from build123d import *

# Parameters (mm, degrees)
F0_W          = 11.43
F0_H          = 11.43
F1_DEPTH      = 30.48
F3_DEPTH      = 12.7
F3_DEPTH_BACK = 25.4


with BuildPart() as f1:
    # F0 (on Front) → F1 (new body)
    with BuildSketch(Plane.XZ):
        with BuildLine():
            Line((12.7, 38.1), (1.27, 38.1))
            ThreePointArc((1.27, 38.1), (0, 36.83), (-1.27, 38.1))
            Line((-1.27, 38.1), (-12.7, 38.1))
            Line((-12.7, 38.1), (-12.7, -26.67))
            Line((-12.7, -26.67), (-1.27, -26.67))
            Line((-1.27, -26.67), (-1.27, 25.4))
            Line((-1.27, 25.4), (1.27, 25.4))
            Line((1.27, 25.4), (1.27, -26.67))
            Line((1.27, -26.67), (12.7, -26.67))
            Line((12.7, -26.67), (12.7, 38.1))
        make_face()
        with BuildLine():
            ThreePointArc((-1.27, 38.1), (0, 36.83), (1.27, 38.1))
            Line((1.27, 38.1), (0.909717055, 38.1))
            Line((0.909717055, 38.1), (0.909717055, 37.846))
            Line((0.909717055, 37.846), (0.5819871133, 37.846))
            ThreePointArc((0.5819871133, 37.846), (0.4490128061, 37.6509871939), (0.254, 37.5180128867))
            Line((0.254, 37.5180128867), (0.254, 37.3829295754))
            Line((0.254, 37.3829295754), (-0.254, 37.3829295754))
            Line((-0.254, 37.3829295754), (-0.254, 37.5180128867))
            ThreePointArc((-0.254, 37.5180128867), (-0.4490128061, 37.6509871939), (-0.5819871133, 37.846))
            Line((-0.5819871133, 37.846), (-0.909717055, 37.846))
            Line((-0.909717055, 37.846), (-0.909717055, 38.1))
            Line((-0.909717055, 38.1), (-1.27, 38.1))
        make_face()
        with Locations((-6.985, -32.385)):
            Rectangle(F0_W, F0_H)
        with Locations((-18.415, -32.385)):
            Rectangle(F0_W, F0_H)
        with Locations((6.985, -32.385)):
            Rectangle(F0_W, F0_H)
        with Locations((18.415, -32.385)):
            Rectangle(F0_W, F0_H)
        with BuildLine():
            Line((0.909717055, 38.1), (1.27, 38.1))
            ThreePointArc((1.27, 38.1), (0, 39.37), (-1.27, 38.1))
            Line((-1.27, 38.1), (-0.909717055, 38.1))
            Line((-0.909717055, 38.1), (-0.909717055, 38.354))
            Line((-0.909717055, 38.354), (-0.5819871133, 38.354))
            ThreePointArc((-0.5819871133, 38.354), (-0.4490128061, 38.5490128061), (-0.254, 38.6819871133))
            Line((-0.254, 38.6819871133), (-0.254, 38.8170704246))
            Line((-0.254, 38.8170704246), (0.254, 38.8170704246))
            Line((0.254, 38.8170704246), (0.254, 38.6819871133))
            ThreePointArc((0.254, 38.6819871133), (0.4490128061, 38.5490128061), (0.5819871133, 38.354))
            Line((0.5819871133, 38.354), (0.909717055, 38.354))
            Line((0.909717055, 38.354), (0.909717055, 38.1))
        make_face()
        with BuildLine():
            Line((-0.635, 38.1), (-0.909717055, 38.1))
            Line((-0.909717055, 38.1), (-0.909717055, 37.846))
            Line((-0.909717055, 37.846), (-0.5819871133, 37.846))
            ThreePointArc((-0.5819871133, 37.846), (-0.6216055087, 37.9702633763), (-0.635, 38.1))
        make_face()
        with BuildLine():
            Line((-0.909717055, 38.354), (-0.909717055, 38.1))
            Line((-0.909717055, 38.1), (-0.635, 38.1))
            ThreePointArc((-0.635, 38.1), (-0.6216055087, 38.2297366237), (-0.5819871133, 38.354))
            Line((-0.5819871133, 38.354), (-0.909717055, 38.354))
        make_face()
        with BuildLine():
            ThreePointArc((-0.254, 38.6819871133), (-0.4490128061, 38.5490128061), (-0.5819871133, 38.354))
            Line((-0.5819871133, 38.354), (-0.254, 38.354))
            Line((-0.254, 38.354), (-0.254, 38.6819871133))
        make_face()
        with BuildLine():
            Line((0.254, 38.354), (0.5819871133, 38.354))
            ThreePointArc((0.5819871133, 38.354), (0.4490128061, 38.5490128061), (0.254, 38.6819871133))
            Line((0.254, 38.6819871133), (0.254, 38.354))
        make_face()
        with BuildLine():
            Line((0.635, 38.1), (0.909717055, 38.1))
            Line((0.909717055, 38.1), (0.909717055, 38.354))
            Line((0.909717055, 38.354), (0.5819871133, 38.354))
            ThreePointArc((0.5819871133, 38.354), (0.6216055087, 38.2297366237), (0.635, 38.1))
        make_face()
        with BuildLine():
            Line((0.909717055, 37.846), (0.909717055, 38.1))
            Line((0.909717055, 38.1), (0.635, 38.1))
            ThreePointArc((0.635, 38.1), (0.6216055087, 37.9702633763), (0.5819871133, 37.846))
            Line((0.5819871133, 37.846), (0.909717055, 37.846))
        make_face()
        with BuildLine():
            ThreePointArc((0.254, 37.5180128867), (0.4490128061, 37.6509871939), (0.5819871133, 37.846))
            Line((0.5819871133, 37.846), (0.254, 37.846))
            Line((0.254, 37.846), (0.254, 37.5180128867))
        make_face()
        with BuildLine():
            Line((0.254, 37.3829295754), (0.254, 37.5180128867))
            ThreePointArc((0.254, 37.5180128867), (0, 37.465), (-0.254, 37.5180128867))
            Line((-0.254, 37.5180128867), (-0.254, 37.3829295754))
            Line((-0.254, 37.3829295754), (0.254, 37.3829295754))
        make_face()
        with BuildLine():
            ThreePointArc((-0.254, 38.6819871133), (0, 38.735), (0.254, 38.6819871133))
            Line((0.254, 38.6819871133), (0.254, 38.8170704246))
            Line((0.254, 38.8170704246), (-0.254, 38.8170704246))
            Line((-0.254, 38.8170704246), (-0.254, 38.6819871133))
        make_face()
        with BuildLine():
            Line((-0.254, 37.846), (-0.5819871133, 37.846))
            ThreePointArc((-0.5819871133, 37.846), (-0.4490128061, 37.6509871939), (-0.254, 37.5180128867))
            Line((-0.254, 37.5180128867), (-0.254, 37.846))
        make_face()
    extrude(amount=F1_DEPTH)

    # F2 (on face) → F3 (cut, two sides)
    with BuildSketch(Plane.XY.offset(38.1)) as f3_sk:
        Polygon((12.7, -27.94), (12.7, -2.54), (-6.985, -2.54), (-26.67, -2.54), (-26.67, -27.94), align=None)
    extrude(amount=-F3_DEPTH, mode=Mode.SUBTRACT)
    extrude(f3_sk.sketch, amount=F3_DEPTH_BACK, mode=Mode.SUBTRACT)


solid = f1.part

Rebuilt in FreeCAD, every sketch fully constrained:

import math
import FreeCAD as App
import Part
import Sketcher
Q = App.Units.Quantity

doc = App.newDocument("Part")
body = doc.addObject("PartDesign::Body", "Body")

sketch1 = body.newObject("Sketcher::SketchObject", "Sketch")
sketch1.AttachmentSupport = (doc.getObject("XZ_Plane"), [""])
sketch1.MapMode = "FlatFace"
sketch1.addGeometry(Part.LineSegment(App.Vector(12.7, -26.67, 0), App.Vector(12.7, 38.1, 0)), False)
sketch1.addGeometry(Part.LineSegment(App.Vector(12.7, 38.1, 0), App.Vector(1.27, 38.1, 0)), False)
sketch1.addGeometry(Part.ArcOfCircle(Part.Circle(App.Vector(0, 38.1, 0), App.Vector(0, 0, 1), 1.27), math.radians(0), math.radians(180)), False)
sketch1.addGeometry(Part.LineSegment(App.Vector(-1.27, 38.1, 0), App.Vector(-12.7, 38.1, 0)), False)
sketch1.addGeometry(Part.LineSegment(App.Vector(-12.7, 38.1, 0), App.Vector(-12.7, -26.67, 0)), False)
sketch1.addGeometry(Part.LineSegment(App.Vector(-12.7, -26.67, 0), App.Vector(-24.13, -26.67, 0)), False)
sketch1.addGeometry(Part.LineSegment(App.Vector(-24.13, -26.67, 0), App.Vector(-24.13, -38.1, 0)), False)
sketch1.addGeometry(Part.LineSegment(App.Vector(-24.13, -38.1, 0), App.Vector(-1.27, -38.1, 0)), False)
sketch1.addGeometry(Part.LineSegment(App.Vector(-1.27, -38.1, 0), App.Vector(-1.27, 25.4, 0)), False)
sketch1.addGeometry(Part.LineSegment(App.Vector(-1.27, 25.4, 0), App.Vector(1.27, 25.4, 0)), False)
sketch1.addGeometry(Part.LineSegment(App.Vector(1.27, 25.4, 0), App.Vector(1.27, -38.1, 0)), False)
sketch1.addGeometry(Part.LineSegment(App.Vector(1.27, -38.1, 0), App.Vector(24.13, -38.1, 0)), False)
sketch1.addGeometry(Part.LineSegment(App.Vector(24.13, -38.1, 0), App.Vector(24.13, -26.67, 0)), False)
sketch1.addGeometry(Part.LineSegment(App.Vector(24.13, -26.67, 0), App.Vector(12.7, -26.67, 0)), False)
sketch1.addGeometry(Part.ArcOfCircle(Part.Circle(App.Vector(0, 38.1, 0), App.Vector(0, 0, 1), 0.64), math.radians(180), math.radians(204)), False)
sketch1.addGeometry(Part.ArcOfCircle(Part.Circle(App.Vector(0, 38.1, 0), App.Vector(0, 0, 1), 0.64), math.radians(156), math.radians(180)), False)
sketch1.addGeometry(Part.LineSegment(App.Vector(-0.58, 38.35, 0), App.Vector(-0.25, 38.35, 0)), False)
sketch1.addGeometry(Part.LineSegment(App.Vector(-0.25, 38.35, 0), App.Vector(-0.25, 38.68, 0)), False)
sketch1.addGeometry(Part.ArcOfCircle(Part.Circle(App.Vector(0, 38.1, 0), App.Vector(0, 0, 1), 0.64), math.radians(66), math.radians(114)), False)
sketch1.addGeometry(Part.LineSegment(App.Vector(0.25, 38.68, 0), App.Vector(0.25, 38.35, 0)), False)
sketch1.addGeometry(Part.LineSegment(App.Vector(0.25, 38.35, 0), App.Vector(0.58, 38.35, 0)), False)
sketch1.addGeometry(Part.ArcOfCircle(Part.Circle(App.Vector(0, 38.1, 0), App.Vector(0, 0, 1), 0.64), math.radians(0), math.radians(24)), False)
sketch1.addGeometry(Part.ArcOfCircle(Part.Circle(App.Vector(0, 38.1, 0), App.Vector(0, 0, 1), 0.64), math.radians(-24), math.radians(0)), False)
sketch1.addGeometry(Part.LineSegment(App.Vector(0.58, 37.85, 0), App.Vector(0.25, 37.85, 0)), False)
sketch1.addGeometry(Part.LineSegment(App.Vector(0.25, 37.85, 0), App.Vector(0.25, 37.52, 0)), False)
sketch1.addGeometry(Part.ArcOfCircle(Part.Circle(App.Vector(0, 38.1, 0), App.Vector(0, 0, 1), 0.64), math.radians(-114), math.radians(-66)), False)
sketch1.addGeometry(Part.LineSegment(App.Vector(-0.25, 37.52, 0), App.Vector(-0.25, 37.85, 0)), False)
sketch1.addGeometry(Part.LineSegment(App.Vector(-0.25, 37.85, 0), App.Vector(-0.58, 37.85, 0)), False)
sketch1.addConstraint(Sketcher.Constraint("Coincident", 0, 2, 1, 1))
sketch1.addConstraint(Sketcher.Constraint("Coincident", 1, 2, 2, 1))
sketch1.addConstraint(Sketcher.Constraint("Coincident", 2, 2, 3, 1))
sketch1.addConstraint(Sketcher.Constraint("Coincident", 3, 2, 4, 1))
sketch1.addConstraint(Sketcher.Constraint("Coincident", 4, 2, 5, 1))
sketch1.addConstraint(Sketcher.Constraint("Coincident", 5, 2, 6, 1))
sketch1.addConstraint(Sketcher.Constraint("Coincident", 6, 2, 7, 1))
sketch1.addConstraint(Sketcher.Constraint("Coincident", 7, 2, 8, 1))
sketch1.addConstraint(Sketcher.Constraint("Coincident", 8, 2, 9, 1))
sketch1.addConstraint(Sketcher.Constraint("Coincident", 9, 2, 10, 1))
sketch1.addConstraint(Sketcher.Constraint("Coincident", 10, 2, 11, 1))
sketch1.addConstraint(Sketcher.Constraint("Coincident", 11, 2, 12, 1))
sketch1.addConstraint(Sketcher.Constraint("Coincident", 12, 2, 13, 1))
sketch1.addConstraint(Sketcher.Constraint("Coincident", 13, 2, 0, 1))
sketch1.addConstraint(Sketcher.Constraint("Tangent", 14, 1, 15, 2))
sketch1.addConstraint(Sketcher.Constraint("Coincident", 15, 1, 16, 1))
sketch1.addConstraint(Sketcher.Constraint("Coincident", 16, 2, 17, 1))
sketch1.addConstraint(Sketcher.Constraint("Coincident", 17, 2, 18, 2))
sketch1.addConstraint(Sketcher.Constraint("Coincident", 18, 1, 19, 1))
sketch1.addConstraint(Sketcher.Constraint("Coincident", 19, 2, 20, 1))
sketch1.addConstraint(Sketcher.Constraint("Coincident", 20, 2, 21, 2))
sketch1.addConstraint(Sketcher.Constraint("Tangent", 21, 1, 22, 2))
sketch1.addConstraint(Sketcher.Constraint("Coincident", 22, 1, 23, 1))
sketch1.addConstraint(Sketcher.Constraint("Coincident", 23, 2, 24, 1))
sketch1.addConstraint(Sketcher.Constraint("Coincident", 24, 2, 25, 2))
sketch1.addConstraint(Sketcher.Constraint("Coincident", 25, 1, 26, 1))
sketch1.addConstraint(Sketcher.Constraint("Coincident", 26, 2, 27, 1))
sketch1.addConstraint(Sketcher.Constraint("Coincident", 27, 2, 14, 2))
sketch1.addConstraint(Sketcher.Constraint("Vertical", 0))
sketch1.addConstraint(Sketcher.Constraint("Horizontal", 1))
sketch1.addConstraint(Sketcher.Constraint("Horizontal", 3))
sketch1.addConstraint(Sketcher.Constraint("Vertical", 4))
sketch1.addConstraint(Sketcher.Constraint("Horizontal", 5))
sketch1.addConstraint(Sketcher.Constraint("Vertical", 6))
sketch1.addConstraint(Sketcher.Constraint("Horizontal", 7))
sketch1.addConstraint(Sketcher.Constraint("Vertical", 8))
sketch1.addConstraint(Sketcher.Constraint("Horizontal", 9))
sketch1.addConstraint(Sketcher.Constraint("Vertical", 10))
sketch1.addConstraint(Sketcher.Constraint("Horizontal", 11))
sketch1.addConstraint(Sketcher.Constraint("Vertical", 12))
sketch1.addConstraint(Sketcher.Constraint("Horizontal", 13))
sketch1.addConstraint(Sketcher.Constraint("Horizontal", 16))
sketch1.addConstraint(Sketcher.Constraint("Vertical", 17))
sketch1.addConstraint(Sketcher.Constraint("Vertical", 19))
sketch1.addConstraint(Sketcher.Constraint("Horizontal", 20))
sketch1.addConstraint(Sketcher.Constraint("Horizontal", 23))
sketch1.addConstraint(Sketcher.Constraint("Vertical", 24))
sketch1.addConstraint(Sketcher.Constraint("Vertical", 26))
sketch1.addConstraint(Sketcher.Constraint("Horizontal", 27))
sketch1.addConstraint(Sketcher.Constraint("Coincident", 14, 3, 2, 3))
sketch1.addConstraint(Sketcher.Constraint("Coincident", 18, 3, 2, 3))
sketch1.addConstraint(Sketcher.Constraint("Coincident", 21, 3, 2, 3))
sketch1.addConstraint(Sketcher.Constraint("Coincident", 25, 3, 2, 3))
sketch1.addConstraint(Sketcher.Constraint("Equal", 14, 15))
sketch1.addConstraint(Sketcher.Constraint("Equal", 15, 18))
sketch1.addConstraint(Sketcher.Constraint("Equal", 18, 21))
sketch1.addConstraint(Sketcher.Constraint("Equal", 21, 22))
sketch1.addConstraint(Sketcher.Constraint("Equal", 22, 25))
sketch1.addConstraint(Sketcher.Constraint("Symmetric", 1, 2, 7, 2, -1, 1))
sketch1.addConstraint(Sketcher.Constraint("Symmetric", 2, 2, 10, 2, -1, 1))
sketch1.addConstraint(Sketcher.Constraint("Symmetric", 1, 2, 2, 2, -2))
sketch1.addConstraint(Sketcher.Constraint("Symmetric", 5, 2, 12, 2, -2))
sketch1.addConstraint(Sketcher.Constraint("Symmetric", 16, 2, 19, 2, -2))
sketch1.addConstraint(Sketcher.Constraint("Symmetric", 23, 2, 26, 2, -2))
sketch1.addConstraint(Sketcher.Constraint("Horizontal", 25, 3, 0, 2))
sketch1.addConstraint(Sketcher.Constraint("Horizontal", 3, 2, 14, 1))
sketch1.addConstraint(Sketcher.Constraint("Horizontal", 14, 1, 21, 1))
sketch1.addConstraint(Sketcher.Constraint("Vertical", 20, 2, 22, 1))
sketch1.addConstraint(Sketcher.Constraint("Vertical", 19, 2, 23, 2))
sketch1.addConstraint(Sketcher.Constraint("Equal", 1, 3))
sketch1.addConstraint(Sketcher.Constraint("Equal", 3, 5))
sketch1.addConstraint(Sketcher.Constraint("Equal", 13, 6))
sketch1.addConstraint(Sketcher.Constraint("Equal", 27, 17))
sketch1.addConstraint(Sketcher.Constraint("Radius", 2, Q("0.05 in")))
sketch1.addConstraint(Sketcher.Constraint("DistanceX", 7, 1, 7, 2, Q("0.9 in")))
sketch1.addConstraint(Sketcher.Constraint("DistanceY", 8, 1, 8, 2, Q("2.5 in")))
sketch1.addConstraint(Sketcher.Constraint("DistanceY", -1, 1, 8, 2, Q("1 in")))
sketch1.addConstraint(Sketcher.Constraint("Radius", 14, Q("0.025 in")))
sketch1.addConstraint(Sketcher.Constraint("DistanceY", -1, 1, 15, 1, Q("1.51 in")))
pad1 = body.newObject("PartDesign::Pad", "Pad")
pad1.Profile = sketch1
pad1.Length = Q("1.2 in")

sketch2 = body.newObject("Sketcher::SketchObject", "Sketch001")
sketch2.AttachmentSupport = (doc.getObject("XY_Plane"), [""])
sketch2.MapMode = "FlatFace"
sketch2.AttachmentOffset = App.Placement(App.Vector(0, 0, 1.5 * 25.4), App.Rotation())
sketch2.addGeometry(Part.LineSegment(App.Vector(13, -28, 0), App.Vector(13, -3, 0)), False)
sketch2.addGeometry(Part.LineSegment(App.Vector(13, -3, 0), App.Vector(-27, -3, 0)), False)
sketch2.addGeometry(Part.LineSegment(App.Vector(-27, -3, 0), App.Vector(-27, -28, 0)), False)
sketch2.addGeometry(Part.LineSegment(App.Vector(-27, -28, 0), App.Vector(13, -28, 0)), False)
sketch2.addConstraint(Sketcher.Constraint("Coincident", 0, 2, 1, 1))
sketch2.addConstraint(Sketcher.Constraint("Coincident", 1, 2, 2, 1))
sketch2.addConstraint(Sketcher.Constraint("Coincident", 2, 2, 3, 1))
sketch2.addConstraint(Sketcher.Constraint("Coincident", 3, 2, 0, 1))
sketch2.addConstraint(Sketcher.Constraint("Vertical", 0))
sketch2.addConstraint(Sketcher.Constraint("Horizontal", 1))
sketch2.addConstraint(Sketcher.Constraint("Vertical", 2))
sketch2.addConstraint(Sketcher.Constraint("Horizontal", 3))
sketch2.addConstraint(Sketcher.Constraint("DistanceY", 0, 1, 0, 2, Q("1 in")))
sketch2.addConstraint(Sketcher.Constraint("DistanceX", 1, 2, 1, 1, Q("1.55 in")))
sketch2.addConstraint(Sketcher.Constraint("DistanceX", -1, 1, 0, 2, Q("0.5 in")))
sketch2.addConstraint(Sketcher.Constraint("DistanceY", 0, 2, -1, 1, Q("0.1 in")))
pocket1 = body.newObject("PartDesign::Pocket", "Pocket")
pocket1.Profile = sketch2
pocket1.Type = "TwoLengths"
pocket1.Length = Q("0.5 in")
pocket1.Length2 = Q("1 in")

doc.recompute()
